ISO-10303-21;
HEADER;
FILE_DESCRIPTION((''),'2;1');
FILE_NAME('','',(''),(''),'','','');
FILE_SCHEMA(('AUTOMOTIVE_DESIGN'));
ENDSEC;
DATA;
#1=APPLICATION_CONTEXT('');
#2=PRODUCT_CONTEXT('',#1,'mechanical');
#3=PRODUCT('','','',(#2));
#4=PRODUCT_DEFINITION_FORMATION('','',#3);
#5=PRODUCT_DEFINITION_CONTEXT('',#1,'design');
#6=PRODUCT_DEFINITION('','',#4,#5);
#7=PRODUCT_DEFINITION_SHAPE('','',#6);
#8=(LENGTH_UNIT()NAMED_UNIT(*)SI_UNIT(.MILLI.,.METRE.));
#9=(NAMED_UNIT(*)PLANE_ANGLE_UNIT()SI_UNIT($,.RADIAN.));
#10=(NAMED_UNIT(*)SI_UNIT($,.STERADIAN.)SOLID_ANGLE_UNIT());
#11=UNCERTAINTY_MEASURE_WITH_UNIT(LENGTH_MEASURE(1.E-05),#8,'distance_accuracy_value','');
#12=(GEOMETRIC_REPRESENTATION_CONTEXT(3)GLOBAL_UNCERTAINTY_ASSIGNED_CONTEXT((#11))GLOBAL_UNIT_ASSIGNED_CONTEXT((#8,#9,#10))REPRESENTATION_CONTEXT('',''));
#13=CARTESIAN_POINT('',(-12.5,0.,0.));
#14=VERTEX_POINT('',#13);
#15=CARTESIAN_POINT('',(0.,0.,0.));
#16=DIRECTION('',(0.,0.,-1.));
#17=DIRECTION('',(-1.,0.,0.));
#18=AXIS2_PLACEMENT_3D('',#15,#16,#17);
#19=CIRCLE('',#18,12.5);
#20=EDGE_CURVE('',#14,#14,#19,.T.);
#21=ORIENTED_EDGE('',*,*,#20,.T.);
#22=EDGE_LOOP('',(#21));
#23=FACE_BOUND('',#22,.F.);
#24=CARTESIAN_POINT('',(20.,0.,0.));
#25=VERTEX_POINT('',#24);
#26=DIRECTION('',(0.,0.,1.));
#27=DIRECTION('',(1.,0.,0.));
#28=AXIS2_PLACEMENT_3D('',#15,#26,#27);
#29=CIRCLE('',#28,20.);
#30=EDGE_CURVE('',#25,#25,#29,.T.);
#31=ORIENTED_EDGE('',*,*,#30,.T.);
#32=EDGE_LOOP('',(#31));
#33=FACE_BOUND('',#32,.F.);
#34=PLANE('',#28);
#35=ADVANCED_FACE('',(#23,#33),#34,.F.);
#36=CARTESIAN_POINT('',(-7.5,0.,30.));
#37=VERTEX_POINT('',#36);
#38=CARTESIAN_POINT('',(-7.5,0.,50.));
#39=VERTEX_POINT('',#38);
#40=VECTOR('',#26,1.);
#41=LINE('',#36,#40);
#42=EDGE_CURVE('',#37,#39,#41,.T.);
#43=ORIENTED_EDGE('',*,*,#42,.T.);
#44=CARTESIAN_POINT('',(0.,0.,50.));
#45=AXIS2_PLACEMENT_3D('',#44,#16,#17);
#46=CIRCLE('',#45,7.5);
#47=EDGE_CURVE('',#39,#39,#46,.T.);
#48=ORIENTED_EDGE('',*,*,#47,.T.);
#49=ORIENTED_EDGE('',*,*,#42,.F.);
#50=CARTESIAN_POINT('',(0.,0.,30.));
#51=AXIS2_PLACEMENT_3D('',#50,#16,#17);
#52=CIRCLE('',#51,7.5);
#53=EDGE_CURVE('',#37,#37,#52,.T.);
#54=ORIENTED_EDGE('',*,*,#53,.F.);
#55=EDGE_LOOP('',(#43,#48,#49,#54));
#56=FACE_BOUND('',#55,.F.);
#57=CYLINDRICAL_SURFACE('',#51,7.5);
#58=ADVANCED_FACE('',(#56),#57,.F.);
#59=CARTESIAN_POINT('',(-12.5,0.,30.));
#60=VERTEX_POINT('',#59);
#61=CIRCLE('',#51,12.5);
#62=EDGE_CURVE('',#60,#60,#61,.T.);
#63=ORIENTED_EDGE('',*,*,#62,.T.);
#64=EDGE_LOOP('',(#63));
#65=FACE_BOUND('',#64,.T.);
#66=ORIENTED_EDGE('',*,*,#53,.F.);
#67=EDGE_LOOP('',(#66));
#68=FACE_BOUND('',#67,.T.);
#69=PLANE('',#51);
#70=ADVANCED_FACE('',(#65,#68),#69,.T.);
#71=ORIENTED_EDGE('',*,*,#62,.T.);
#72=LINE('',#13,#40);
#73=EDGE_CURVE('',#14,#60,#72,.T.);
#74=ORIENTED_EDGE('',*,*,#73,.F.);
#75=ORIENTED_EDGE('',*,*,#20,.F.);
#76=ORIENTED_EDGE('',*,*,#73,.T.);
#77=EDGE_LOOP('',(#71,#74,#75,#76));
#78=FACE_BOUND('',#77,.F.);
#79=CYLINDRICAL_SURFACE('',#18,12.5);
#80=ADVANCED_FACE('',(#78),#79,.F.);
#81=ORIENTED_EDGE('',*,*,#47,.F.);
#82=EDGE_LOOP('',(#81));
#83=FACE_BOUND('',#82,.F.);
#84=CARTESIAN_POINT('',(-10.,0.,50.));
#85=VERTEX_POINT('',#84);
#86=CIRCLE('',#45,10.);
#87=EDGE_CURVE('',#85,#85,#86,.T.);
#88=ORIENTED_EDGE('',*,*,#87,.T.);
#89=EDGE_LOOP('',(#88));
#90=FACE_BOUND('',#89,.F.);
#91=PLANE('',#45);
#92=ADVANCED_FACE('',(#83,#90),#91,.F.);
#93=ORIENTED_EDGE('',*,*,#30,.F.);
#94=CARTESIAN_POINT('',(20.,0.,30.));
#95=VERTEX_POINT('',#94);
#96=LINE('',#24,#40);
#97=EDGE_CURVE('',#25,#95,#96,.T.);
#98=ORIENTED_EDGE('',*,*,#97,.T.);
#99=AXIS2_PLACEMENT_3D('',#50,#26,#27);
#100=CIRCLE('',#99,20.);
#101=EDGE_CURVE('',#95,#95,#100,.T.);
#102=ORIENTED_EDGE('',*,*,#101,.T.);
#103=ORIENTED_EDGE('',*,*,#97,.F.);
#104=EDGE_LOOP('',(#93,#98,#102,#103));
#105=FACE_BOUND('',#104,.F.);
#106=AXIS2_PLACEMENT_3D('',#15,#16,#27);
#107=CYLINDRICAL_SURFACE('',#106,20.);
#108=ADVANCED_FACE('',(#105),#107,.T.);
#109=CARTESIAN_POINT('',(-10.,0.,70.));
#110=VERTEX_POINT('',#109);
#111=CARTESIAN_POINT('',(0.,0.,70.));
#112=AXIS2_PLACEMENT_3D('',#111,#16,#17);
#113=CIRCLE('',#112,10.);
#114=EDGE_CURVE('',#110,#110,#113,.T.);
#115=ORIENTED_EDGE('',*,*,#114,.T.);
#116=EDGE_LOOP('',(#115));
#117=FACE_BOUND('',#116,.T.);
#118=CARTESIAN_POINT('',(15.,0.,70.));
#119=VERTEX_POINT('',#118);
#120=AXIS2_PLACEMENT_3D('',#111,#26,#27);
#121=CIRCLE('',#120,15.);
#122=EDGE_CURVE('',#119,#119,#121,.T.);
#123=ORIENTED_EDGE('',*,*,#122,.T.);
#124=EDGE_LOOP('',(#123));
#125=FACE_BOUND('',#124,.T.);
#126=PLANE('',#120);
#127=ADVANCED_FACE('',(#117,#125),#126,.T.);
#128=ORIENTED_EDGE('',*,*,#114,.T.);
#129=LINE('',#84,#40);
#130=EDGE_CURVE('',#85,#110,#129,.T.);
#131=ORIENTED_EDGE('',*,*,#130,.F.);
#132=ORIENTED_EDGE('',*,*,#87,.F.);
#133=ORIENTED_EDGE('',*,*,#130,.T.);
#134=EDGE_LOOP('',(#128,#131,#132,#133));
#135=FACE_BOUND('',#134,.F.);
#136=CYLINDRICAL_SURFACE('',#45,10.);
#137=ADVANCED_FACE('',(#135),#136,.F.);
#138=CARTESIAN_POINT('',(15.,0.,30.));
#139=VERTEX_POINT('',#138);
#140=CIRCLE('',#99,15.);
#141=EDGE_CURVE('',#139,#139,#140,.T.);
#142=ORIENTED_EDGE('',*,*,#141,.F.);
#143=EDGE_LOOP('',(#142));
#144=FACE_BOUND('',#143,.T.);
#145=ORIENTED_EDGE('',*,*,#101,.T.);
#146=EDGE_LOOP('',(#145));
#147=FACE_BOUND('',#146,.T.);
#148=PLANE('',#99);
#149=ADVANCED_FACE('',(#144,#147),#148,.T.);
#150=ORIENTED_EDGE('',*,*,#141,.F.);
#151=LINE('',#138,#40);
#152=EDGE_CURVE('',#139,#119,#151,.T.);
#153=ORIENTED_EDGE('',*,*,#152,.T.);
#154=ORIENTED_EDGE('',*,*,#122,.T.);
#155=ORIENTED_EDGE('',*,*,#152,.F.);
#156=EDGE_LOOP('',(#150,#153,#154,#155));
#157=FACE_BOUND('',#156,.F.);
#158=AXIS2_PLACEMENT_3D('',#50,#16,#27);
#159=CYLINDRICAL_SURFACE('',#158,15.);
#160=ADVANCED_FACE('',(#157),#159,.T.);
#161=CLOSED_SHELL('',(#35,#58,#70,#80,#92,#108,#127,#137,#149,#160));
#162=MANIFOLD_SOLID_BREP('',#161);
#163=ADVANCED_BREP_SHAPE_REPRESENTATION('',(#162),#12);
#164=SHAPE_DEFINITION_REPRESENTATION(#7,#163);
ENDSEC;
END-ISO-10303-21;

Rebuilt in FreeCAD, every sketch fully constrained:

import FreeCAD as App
import Part
import Sketcher

V = App.Vector

doc = App.newDocument("Part")
body = doc.addObject("PartDesign::Body", "Body")

sketch1 = body.newObject("Sketcher::SketchObject", "Sketch")
sketch1.AttachmentSupport = (doc.getObject("XY_Plane"), [""])
sketch1.MapMode = "FlatFace"
sketch1.addGeometry(Part.Circle(V(0, 0, 0), V(0, 0, 1), 20), False)
sketch1.addConstraint(Sketcher.Constraint("Coincident", 0, 3, -1, 1))
sketch1.addConstraint(Sketcher.Constraint("Diameter", 0, 40.0))
pad1 = body.newObject("PartDesign::Pad", "Pad")
pad1.Profile = sketch1
pad1.Length = 30

sketch2 = body.newObject("Sketcher::SketchObject", "Sketch001")
sketch2.AttachmentSupport = (doc.getObject("XY_Plane"), [""])
sketch2.MapMode = "FlatFace"
sketch2.AttachmentOffset = App.Placement(V(0, 0, 30), App.Rotation())
sketch2.addGeometry(Part.Circle(V(0, 0, 0), V(0, 0, 1), 15), False)
sketch2.addConstraint(Sketcher.Constraint("Coincident", 0, 3, -1, 1))
sketch2.addConstraint(Sketcher.Constraint("Diameter", 0, 30.0))
pad2 = body.newObject("PartDesign::Pad", "Pad001")
pad2.Profile = sketch2
pad2.Length = 40

sketch3 = body.newObject("Sketcher::SketchObject", "Sketch002")
sketch3.AttachmentSupport = (doc.getObject("XY_Plane"), [""])
sketch3.MapMode = "FlatFace"
sketch3.addGeometry(Part.Circle(V(0, 0, 0), V(0, 0, 1), 12), False)
sketch3.addConstraint(Sketcher.Constraint("Coincident", 0, 3, -1, 1))
sketch3.addConstraint(Sketcher.Constraint("Diameter", 0, 25.0))
pocket1 = body.newObject("PartDesign::Pocket", "Pocket")
pocket1.Profile = sketch3
pocket1.Length = 30
pocket1.Reversed = True

sketch4 = body.newObject("Sketcher::SketchObject", "Sketch003")
sketch4.AttachmentSupport = (doc.getObject("XY_Plane"), [""])
sketch4.MapMode = "FlatFace"
sketch4.AttachmentOffset = App.Placement(V(0, 0, 30), App.Rotation())
sketch4.addGeometry(Part.Circle(V(0, 0, 0), V(0, 0, 1), 8), False)
sketch4.addConstraint(Sketcher.Constraint("Coincident", 0, 3, -1, 1))
sketch4.addConstraint(Sketcher.Constraint("Diameter", 0, 15.0))
pocket2 = body.newObject("PartDesign::Pocket", "Pocket001")
pocket2.Profile = sketch4
pocket2.Length = 20
pocket2.Reversed = True

sketch5 = body.newObject("Sketcher::SketchObject", "Sketch004")
sketch5.AttachmentSupport = (doc.getObject("XY_Plane"), [""])
sketch5.MapMode = "FlatFace"
sketch5.AttachmentOffset = App.Placement(V(0, 0, 50), App.Rotation())
sketch5.addGeometry(Part.Circle(V(0, 0, 0), V(0, 0, 1), 10), False)
sketch5.addConstraint(Sketcher.Constraint("Coincident", 0, 3, -1, 1))
sketch5.addConstraint(Sketcher.Constraint("Diameter", 0, 20.0))
pocket3 = body.newObject("PartDesign::Pocket", "Pocket002")
pocket3.Profile = sketch5
pocket3.Type = "UpToFirst"
pocket3.Reversed = True

doc.recompute()
